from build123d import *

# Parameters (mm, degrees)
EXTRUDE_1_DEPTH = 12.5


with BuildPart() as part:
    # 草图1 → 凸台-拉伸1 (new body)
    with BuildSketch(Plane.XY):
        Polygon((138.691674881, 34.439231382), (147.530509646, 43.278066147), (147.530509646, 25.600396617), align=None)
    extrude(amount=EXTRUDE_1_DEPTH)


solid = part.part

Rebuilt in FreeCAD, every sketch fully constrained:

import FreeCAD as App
import Part
import Sketcher
Q = App.Units.Quantity


def add_polygon(sketch, points):
    """Adds a closed chain of lines whose ends are joined by coincident constraints."""
    first, n = sketch.GeometryCount, len(points)
    for a, b in zip(points, points[1:] + points[:1]):
        sketch.addGeometry(Part.LineSegment(App.Vector(*a, 0), App.Vector(*b, 0)), False)
    for i in range(n):
        sketch.addConstraint(Sketcher.Constraint("Coincident", first + i, 2, first + (i + 1) % n, 1))

doc = App.newDocument("Part")
body = doc.addObject("PartDesign::Body", "Body")

sketch1 = doc.addObject("Sketcher::SketchObject", "Sketch")
body.addObject(sketch1)
sketch1.AttachmentSupport = (doc.XY_Plane, [""])
sketch1.MapMode = "FlatFace"
add_polygon(sketch1, [(147.53051, 43.278066), (138.691675, 34.439231), (147.53051, 25.600397)])
sketch1.addConstraint(Sketcher.Constraint("Vertical", 2))
sketch1.addConstraint(Sketcher.Constraint("Perpendicular", 0, 1))
sketch1.addConstraint(Sketcher.Constraint("Equal", 0, 1))
sketch1.addConstraint(Sketcher.Constraint("Distance", 0, Q("12.5 mm")))
sketch1.addConstraint(Sketcher.Constraint("DistanceY", -1, 1, 0, 2, Q("34.439231 mm")))
sketch1.addConstraint(Sketcher.Constraint("DistanceX", -1, 1, 1, 2, Q("147.53051 mm")))
pad1 = doc.addObject("PartDesign::Pad", "Pad")
body.addObject(pad1)
pad1.Profile = sketch1
pad1.Length = 12.5

doc.recompute()
